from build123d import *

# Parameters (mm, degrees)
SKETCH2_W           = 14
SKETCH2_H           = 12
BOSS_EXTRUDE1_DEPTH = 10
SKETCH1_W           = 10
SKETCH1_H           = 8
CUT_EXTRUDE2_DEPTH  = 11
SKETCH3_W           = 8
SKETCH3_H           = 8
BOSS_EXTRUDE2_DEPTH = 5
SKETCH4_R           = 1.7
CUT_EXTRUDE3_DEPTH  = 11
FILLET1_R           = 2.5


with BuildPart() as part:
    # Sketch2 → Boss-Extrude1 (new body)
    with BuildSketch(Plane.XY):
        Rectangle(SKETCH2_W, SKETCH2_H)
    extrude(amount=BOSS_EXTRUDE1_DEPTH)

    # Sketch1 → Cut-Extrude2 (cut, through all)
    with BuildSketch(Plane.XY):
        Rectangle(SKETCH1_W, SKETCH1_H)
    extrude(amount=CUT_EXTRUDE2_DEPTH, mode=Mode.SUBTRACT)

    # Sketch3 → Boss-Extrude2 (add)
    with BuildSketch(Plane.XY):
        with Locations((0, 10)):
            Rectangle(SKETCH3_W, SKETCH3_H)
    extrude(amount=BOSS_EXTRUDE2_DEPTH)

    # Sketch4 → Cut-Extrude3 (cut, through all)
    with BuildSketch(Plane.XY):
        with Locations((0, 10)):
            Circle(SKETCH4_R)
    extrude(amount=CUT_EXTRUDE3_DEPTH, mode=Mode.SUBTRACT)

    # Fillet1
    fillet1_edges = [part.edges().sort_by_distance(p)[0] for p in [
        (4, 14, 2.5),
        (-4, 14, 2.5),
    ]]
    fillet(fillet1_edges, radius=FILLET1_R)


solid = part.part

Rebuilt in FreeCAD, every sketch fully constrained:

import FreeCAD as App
import Part
import Sketcher
from FreeCAD import Vector


def edges_at(feature, points):
    """Names of the edges that pass closest to the given points."""
    edges = feature.Shape.Edges
    near = lambda p: min(range(len(edges)), key=lambda i: edges[i].distToShape(Part.Vertex(*p))[0])
    return sorted({f"Edge{near(p) + 1}" for p in points})

doc = App.newDocument("Part")
body = doc.addObject("PartDesign::Body", "Body")

# Sketch on XY plane
sketch1 = body.newObject("Sketcher::SketchObject", "Sketch")
sketch1.AttachmentSupport = (doc.getObject("XY_Plane"), [""])
sketch1.MapMode = "FlatFace"
sketch1.addGeometry([
    Part.LineSegment(Vector(-7, 6, 0), Vector(-7, -6, 0)),
    Part.LineSegment(Vector(-7, -6, 0), Vector(7, -6, 0)),
    Part.LineSegment(Vector(7, -6, 0), Vector(7, 6, 0)),
    Part.LineSegment(Vector(7, 6, 0), Vector(-7, 6, 0)),
], False)
sketch1.addConstraint([
    Sketcher.Constraint("Coincident", 0, 2, 1, 1),
    Sketcher.Constraint("Coincident", 1, 2, 2, 1),
    Sketcher.Constraint("Coincident", 2, 2, 3, 1),
    Sketcher.Constraint("Coincident", 3, 2, 0, 1),
    Sketcher.Constraint("Vertical", 0),
    Sketcher.Constraint("Horizontal", 1),
    Sketcher.Constraint("Vertical", 2),
    Sketcher.Constraint("Horizontal", 3),
    Sketcher.Constraint("Symmetric", 0, 2, 2, 2, -1, 1),
    Sketcher.Constraint("DistanceX", 1, 1, 1, 2, 14.0),
    Sketcher.Constraint("DistanceY", 0, 2, 0, 1, 12.0),
])
pad1 = body.newObject("PartDesign::Pad", "Pad")
pad1.Profile = sketch1
pad1.Length = 10

# Sketch on XY plane
sketch2 = body.newObject("Sketcher::SketchObject", "Sketch001")
sketch2.AttachmentSupport = (doc.getObject("XY_Plane"), [""])
sketch2.MapMode = "FlatFace"
sketch2.addGeometry([
    Part.LineSegment(Vector(-5, 4, 0), Vector(-5, -4, 0)),
    Part.LineSegment(Vector(-5, -4, 0), Vector(5, -4, 0)),
    Part.LineSegment(Vector(5, -4, 0), Vector(5, 4, 0)),
    Part.LineSegment(Vector(5, 4, 0), Vector(-5, 4, 0)),
], False)
sketch2.addConstraint([
    Sketcher.Constraint("Coincident", 0, 2, 1, 1),
    Sketcher.Constraint("Coincident", 1, 2, 2, 1),
    Sketcher.Constraint("Coincident", 2, 2, 3, 1),
    Sketcher.Constraint("Coincident", 3, 2, 0, 1),
    Sketcher.Constraint("Vertical", 0),
    Sketcher.Constraint("Horizontal", 1),
    Sketcher.Constraint("Vertical", 2),
    Sketcher.Constraint("Horizontal", 3),
    Sketcher.Constraint("Symmetric", 0, 2, 2, 2, -1, 1),
    Sketcher.Constraint("DistanceX", 1, 1, 1, 2, 10.0),
    Sketcher.Constraint("DistanceY", 0, 2, 0, 1, 8.0),
])
pocket1 = body.newObject("PartDesign::Pocket", "Pocket")
pocket1.Profile = sketch2
pocket1.Type = "ThroughAll"
pocket1.Reversed = True

# Sketch on XY plane
sketch3 = body.newObject("Sketcher::SketchObject", "Sketch002")
sketch3.AttachmentSupport = (doc.getObject("XY_Plane"), [""])
sketch3.MapMode = "FlatFace"
sketch3.addGeometry([
    Part.LineSegment(Vector(-4, 14, 0), Vector(-4, 6, 0)),
    Part.LineSegment(Vector(-4, 6, 0), Vector(4, 6, 0)),
    Part.LineSegment(Vector(4, 6, 0), Vector(4, 14, 0)),
    Part.LineSegment(Vector(4, 14, 0), Vector(-4, 14, 0)),
], False)
sketch3.addConstraint([
    Sketcher.Constraint("Coincident", 0, 2, 1, 1),
    Sketcher.Constraint("Coincident", 1, 2, 2, 1),
    Sketcher.Constraint("Coincident", 2, 2, 3, 1),
    Sketcher.Constraint("Coincident", 3, 2, 0, 1),
    Sketcher.Constraint("Vertical", 0),
    Sketcher.Constraint("Horizontal", 1),
    Sketcher.Constraint("Vertical", 2),
    Sketcher.Constraint("Horizontal", 3),
    Sketcher.Constraint("Equal", 3, 0),
    Sketcher.Constraint("DistanceX", 1, 1, 1, 2, 8.0),
    Sketcher.Constraint("DistanceX", 0, 2, -1, 1, 4.0),
    Sketcher.Constraint("DistanceY", -1, 1, 0, 2, 6.0),
])
pad2 = body.newObject("PartDesign::Pad", "Pad001")
pad2.Profile = sketch3
pad2.Length = 5

# Sketch on XY plane
sketch4 = body.newObject("Sketcher::SketchObject", "Sketch003")
sketch4.AttachmentSupport = (doc.getObject("XY_Plane"), [""])
sketch4.MapMode = "FlatFace"
sketch4.addGeometry(Part.Circle(Vector(0, 10, 0), Vector(0, 0, 1), 1.7), False)
sketch4.addConstraint([
    Sketcher.Constraint("PointOnObject", 0, 3, -2),
    Sketcher.Constraint("Diameter", 0, 3.4),
    Sketcher.Constraint("DistanceY", -1, 1, 0, 3, 10.0),
])
pocket2 = body.newObject("PartDesign::Pocket", "Pocket001")
pocket2.Profile = sketch4
pocket2.Type = "ThroughAll"
pocket2.Reversed = True
doc.recompute()

fillet = body.newObject("PartDesign::Fillet", "Fillet")
fillet.Base = (pocket2, edges_at(pocket2, [(4, 14, 2.5), (-4, 14, 2.5)]))
fillet.Radius = 2.5

doc.recompute()
